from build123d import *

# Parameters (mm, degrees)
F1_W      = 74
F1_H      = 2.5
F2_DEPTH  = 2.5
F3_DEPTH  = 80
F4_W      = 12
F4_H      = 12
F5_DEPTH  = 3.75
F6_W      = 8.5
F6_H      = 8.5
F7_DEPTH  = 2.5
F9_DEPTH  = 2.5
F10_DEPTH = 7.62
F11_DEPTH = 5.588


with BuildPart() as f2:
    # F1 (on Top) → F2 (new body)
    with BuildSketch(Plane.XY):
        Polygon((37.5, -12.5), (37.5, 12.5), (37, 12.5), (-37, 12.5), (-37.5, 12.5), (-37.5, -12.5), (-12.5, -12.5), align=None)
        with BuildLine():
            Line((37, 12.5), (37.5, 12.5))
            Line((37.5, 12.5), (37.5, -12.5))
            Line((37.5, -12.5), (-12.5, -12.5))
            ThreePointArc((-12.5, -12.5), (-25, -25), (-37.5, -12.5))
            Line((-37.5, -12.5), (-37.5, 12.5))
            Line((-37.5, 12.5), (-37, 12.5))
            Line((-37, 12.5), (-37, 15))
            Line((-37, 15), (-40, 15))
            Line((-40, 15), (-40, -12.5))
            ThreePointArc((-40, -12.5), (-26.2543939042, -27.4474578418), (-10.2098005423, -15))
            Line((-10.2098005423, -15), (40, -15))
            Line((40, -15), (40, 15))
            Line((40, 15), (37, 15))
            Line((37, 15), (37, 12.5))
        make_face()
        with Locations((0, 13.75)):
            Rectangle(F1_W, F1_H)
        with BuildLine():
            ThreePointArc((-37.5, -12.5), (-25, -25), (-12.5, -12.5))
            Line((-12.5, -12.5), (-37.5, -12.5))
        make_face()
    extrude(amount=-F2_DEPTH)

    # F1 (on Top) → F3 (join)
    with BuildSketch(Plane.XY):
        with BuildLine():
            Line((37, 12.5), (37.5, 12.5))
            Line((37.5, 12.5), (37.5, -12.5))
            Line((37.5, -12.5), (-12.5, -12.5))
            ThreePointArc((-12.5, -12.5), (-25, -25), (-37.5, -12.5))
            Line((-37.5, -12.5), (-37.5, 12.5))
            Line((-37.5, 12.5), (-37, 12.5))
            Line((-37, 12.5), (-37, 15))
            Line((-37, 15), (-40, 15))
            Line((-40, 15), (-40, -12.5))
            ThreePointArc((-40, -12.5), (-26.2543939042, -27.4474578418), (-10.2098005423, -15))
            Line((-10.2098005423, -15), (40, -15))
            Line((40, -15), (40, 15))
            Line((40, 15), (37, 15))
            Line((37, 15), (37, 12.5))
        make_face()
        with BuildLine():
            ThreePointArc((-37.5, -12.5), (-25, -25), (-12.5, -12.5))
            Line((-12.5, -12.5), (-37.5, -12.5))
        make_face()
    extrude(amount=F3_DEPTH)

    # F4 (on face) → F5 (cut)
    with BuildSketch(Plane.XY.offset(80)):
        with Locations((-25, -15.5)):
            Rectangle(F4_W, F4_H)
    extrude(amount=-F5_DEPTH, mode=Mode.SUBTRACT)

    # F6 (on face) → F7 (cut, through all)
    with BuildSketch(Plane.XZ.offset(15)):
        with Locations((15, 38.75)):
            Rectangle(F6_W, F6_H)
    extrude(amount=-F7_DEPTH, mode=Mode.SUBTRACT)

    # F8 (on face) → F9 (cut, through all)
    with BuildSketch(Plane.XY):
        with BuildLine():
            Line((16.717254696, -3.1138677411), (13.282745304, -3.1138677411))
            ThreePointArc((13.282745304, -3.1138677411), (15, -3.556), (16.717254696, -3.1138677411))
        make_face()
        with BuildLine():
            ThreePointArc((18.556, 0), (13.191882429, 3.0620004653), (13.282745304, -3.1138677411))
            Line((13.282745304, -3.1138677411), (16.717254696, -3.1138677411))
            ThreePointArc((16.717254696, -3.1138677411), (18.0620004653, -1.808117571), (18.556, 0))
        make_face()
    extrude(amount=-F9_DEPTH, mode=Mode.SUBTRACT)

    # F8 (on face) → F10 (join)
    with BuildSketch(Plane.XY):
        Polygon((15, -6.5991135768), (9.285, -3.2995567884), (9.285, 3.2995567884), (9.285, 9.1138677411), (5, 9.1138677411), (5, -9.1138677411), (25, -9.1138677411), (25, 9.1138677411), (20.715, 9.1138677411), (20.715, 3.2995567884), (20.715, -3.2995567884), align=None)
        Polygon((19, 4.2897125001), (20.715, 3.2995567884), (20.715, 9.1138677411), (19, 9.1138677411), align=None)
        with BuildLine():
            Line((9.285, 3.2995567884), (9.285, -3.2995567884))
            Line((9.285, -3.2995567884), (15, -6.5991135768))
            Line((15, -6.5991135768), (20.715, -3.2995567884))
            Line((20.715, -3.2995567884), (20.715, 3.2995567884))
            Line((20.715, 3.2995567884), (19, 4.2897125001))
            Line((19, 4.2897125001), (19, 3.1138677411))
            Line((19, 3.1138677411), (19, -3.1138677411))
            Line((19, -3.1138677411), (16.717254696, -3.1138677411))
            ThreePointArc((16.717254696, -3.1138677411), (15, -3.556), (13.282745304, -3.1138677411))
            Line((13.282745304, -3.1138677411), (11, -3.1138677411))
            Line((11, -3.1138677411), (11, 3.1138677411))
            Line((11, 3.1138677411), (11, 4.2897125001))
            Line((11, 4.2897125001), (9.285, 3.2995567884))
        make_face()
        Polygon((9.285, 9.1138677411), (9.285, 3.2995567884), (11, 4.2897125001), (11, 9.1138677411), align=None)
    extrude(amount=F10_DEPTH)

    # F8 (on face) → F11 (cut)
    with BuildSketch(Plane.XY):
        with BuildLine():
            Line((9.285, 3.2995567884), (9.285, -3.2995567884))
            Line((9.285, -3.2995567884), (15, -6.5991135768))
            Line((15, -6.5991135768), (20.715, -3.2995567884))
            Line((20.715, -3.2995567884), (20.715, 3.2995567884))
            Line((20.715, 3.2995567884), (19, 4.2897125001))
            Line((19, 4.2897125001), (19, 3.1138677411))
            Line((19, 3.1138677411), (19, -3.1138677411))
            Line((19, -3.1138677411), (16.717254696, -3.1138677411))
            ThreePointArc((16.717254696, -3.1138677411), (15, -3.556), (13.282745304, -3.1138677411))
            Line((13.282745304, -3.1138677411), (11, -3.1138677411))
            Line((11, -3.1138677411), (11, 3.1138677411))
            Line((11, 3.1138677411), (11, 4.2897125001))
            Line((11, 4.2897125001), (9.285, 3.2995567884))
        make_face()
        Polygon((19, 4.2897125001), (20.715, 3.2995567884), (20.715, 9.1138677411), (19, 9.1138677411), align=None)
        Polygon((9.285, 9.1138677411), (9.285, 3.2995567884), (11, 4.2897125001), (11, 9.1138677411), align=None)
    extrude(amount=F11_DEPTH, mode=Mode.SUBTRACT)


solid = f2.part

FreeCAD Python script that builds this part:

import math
import FreeCAD as App
import Part
import Sketcher
Q = App.Units.Quantity

doc = App.newDocument("Part")
body = doc.addObject("PartDesign::Body", "Body")

# Sketch on XY plane
sketch1 = body.newObject("Sketcher::SketchObject", "Sketch")
sketch1.AttachmentSupport = (doc.getObject("XY_Plane"), [""])
sketch1.MapMode = "FlatFace"
sketch1.addGeometry([
    Part.LineSegment(App.Vector(-40, 15, 0), App.Vector(-40, -12.5, 0)),  # 0
    Part.ArcOfCircle(Part.Circle(App.Vector(-25, -12.5, 0), App.Vector(0, 0, 1), 15), math.radians(180), math.radians(350.405932)),  # 1
    Part.LineSegment(App.Vector(-10.209801, -15, 0), App.Vector(40, -15, 0)),  # 2
    Part.LineSegment(App.Vector(40, -15, 0), App.Vector(40, 15, 0)),  # 3
    Part.LineSegment(App.Vector(40, 15, 0), App.Vector(-40, 15, 0)),  # 4
], False)
sketch1.addConstraint([
    Sketcher.Constraint("Tangent", 0, 2, 1, 1),
    Sketcher.Constraint("Coincident", 1, 2, 2, 1),
    Sketcher.Constraint("Coincident", 2, 2, 3, 1),
    Sketcher.Constraint("Coincident", 3, 2, 4, 1),
    Sketcher.Constraint("Coincident", 4, 2, 0, 1),
    Sketcher.Constraint("Vertical", 0),
    Sketcher.Constraint("Horizontal", 2),
    Sketcher.Constraint("Vertical", 3),
    Sketcher.Constraint("Horizontal", 4),
    Sketcher.Constraint("Symmetric", 2, 2, 4, 2, -1, 1),
    Sketcher.Constraint("Radius", 1, Q("15 mm")),
    Sketcher.Constraint("DistanceX", 4, 2, 4, 1, Q("80 mm")),
    Sketcher.Constraint("DistanceY", 3, 1, 3, 2, Q("30 mm")),
    Sketcher.Constraint("DistanceY", 0, 2, 0, 1, Q("27.5 mm")),
])
pad1 = body.newObject("PartDesign::Pad", "Pad")
pad1.Profile = sketch1
pad1.Length = 2.5
pad1.Reversed = True

# Sketch on XY plane
sketch2 = body.newObject("Sketcher::SketchObject", "Sketch001")
sketch2.AttachmentSupport = (doc.getObject("XY_Plane"), [""])
sketch2.MapMode = "FlatFace"
sketch2.addGeometry([
    Part.LineSegment(App.Vector(37, 12.5, 0), App.Vector(37.5, 12.5, 0)),  # 0
    Part.LineSegment(App.Vector(37.5, 12.5, 0), App.Vector(37.5, -12.5, 0)),  # 1
    Part.LineSegment(App.Vector(37.5, -12.5, 0), App.Vector(-37.5, -12.5, 0)),  # 2
    Part.LineSegment(App.Vector(-37.5, -12.5, 0), App.Vector(-37.5, 12.5, 0)),  # 3
    Part.LineSegment(App.Vector(-37.5, 12.5, 0), App.Vector(-37, 12.5, 0)),  # 4
    Part.LineSegment(App.Vector(-37, 12.5, 0), App.Vector(-37, 15, 0)),  # 5
    Part.LineSegment(App.Vector(-37, 15, 0), App.Vector(-40, 15, 0)),  # 6
    Part.LineSegment(App.Vector(-40, 15, 0), App.Vector(-40, -12.5, 0)),  # 7
    Part.ArcOfCircle(Part.Circle(App.Vector(-25, -12.5, 0), App.Vector(0, 0, 1), 15), math.radians(180), math.radians(350.405932)),  # 8
    Part.LineSegment(App.Vector(-10.209801, -15, 0), App.Vector(40, -15, 0)),  # 9
    Part.LineSegment(App.Vector(40, -15, 0), App.Vector(40, 15, 0)),  # 10
    Part.LineSegment(App.Vector(40, 15, 0), App.Vector(37, 15, 0)),  # 11
    Part.LineSegment(App.Vector(37, 15, 0), App.Vector(37, 12.5, 0)),  # 12
], False)
sketch2.addConstraint([
    Sketcher.Constraint("Coincident", 0, 2, 1, 1),
    Sketcher.Constraint("Coincident", 1, 2, 2, 1),
    Sketcher.Constraint("Coincident", 2, 2, 3, 1),
    Sketcher.Constraint("Coincident", 3, 2, 4, 1),
    Sketcher.Constraint("Coincident", 4, 2, 5, 1),
    Sketcher.Constraint("Coincident", 5, 2, 6, 1),
    Sketcher.Constraint("Coincident", 6, 2, 7, 1),
    Sketcher.Constraint("Tangent", 7, 2, 8, 1),
    Sketcher.Constraint("Coincident", 8, 2, 9, 1),
    Sketcher.Constraint("Coincident", 9, 2, 10, 1),
    Sketcher.Constraint("Coincident", 10, 2, 11, 1),
    Sketcher.Constraint("Coincident", 11, 2, 12, 1),
    Sketcher.Constraint("Coincident", 12, 2, 0, 1),
    Sketcher.Constraint("Horizontal", 0),
    Sketcher.Constraint("Vertical", 1),
    Sketcher.Constraint("Horizontal", 2),
    Sketcher.Constraint("Vertical", 3),
    Sketcher.Constraint("Horizontal", 4),
    Sketcher.Constraint("Vertical", 5),
    Sketcher.Constraint("Horizontal", 6),
    Sketcher.Constraint("Vertical", 7),
    Sketcher.Constraint("Horizontal", 9),
    Sketcher.Constraint("Vertical", 10),
    Sketcher.Constraint("Horizontal", 11),
    Sketcher.Constraint("Vertical", 12),
    Sketcher.Constraint("Symmetric", 0, 2, 2, 2, -1, 1),
    Sketcher.Constraint("Symmetric", 6, 2, 9, 2, -1, 1),
    Sketcher.Constraint("Symmetric", 5, 2, 11, 2, -2),
    Sketcher.Constraint("Horizontal", 8, 3, 1, 2),
    Sketcher.Constraint("Horizontal", 0, 2, 3, 2),
    Sketcher.Constraint("Radius", 8, Q("15 mm")),
    Sketcher.Constraint("DistanceX", 2, 2, 2, 1, Q("75 mm")),
    Sketcher.Constraint("DistanceX", 6, 2, 6, 1, Q("3 mm")),
    Sketcher.Constraint("DistanceY", 1, 2, 1, 1, Q("25 mm")),
    Sketcher.Constraint("DistanceY", 10, 1, 10, 2, Q("30 mm")),
    Sketcher.Constraint("DistanceX", 0, 1, 0, 2, Q("0.5 mm")),
])
pad2 = body.newObject("PartDesign::Pad", "Pad001")
pad2.Profile = sketch2
pad2.Length = 80

# Sketch on XY plane
sketch3 = body.newObject("Sketcher::SketchObject", "Sketch002")
sketch3.AttachmentSupport = (doc.getObject("XY_Plane"), [""])
sketch3.MapMode = "FlatFace"
sketch3.AttachmentOffset = App.Placement(App.Vector(0, 0, 80), App.Rotation())
sketch3.addGeometry([
    Part.LineSegment(App.Vector(-31, -9.5, 0), App.Vector(-31, -21.5, 0)),
    Part.LineSegment(App.Vector(-31, -21.5, 0), App.Vector(-19, -21.5, 0)),
    Part.LineSegment(App.Vector(-19, -21.5, 0), App.Vector(-19, -9.5, 0)),
    Part.LineSegment(App.Vector(-19, -9.5, 0), App.Vector(-31, -9.5, 0)),
], False)
sketch3.addConstraint([
    Sketcher.Constraint("Coincident", 0, 2, 1, 1),
    Sketcher.Constraint("Coincident", 1, 2, 2, 1),
    Sketcher.Constraint("Coincident", 2, 2, 3, 1),
    Sketcher.Constraint("Coincident", 3, 2, 0, 1),
    Sketcher.Constraint("Vertical", 0),
    Sketcher.Constraint("Horizontal", 1),
    Sketcher.Constraint("Vertical", 2),
    Sketcher.Constraint("Horizontal", 3),
    Sketcher.Constraint("Equal", 3, 0),
    Sketcher.Constraint("DistanceX", 1, 1, 1, 2, Q("12 mm")),
    Sketcher.Constraint("DistanceX", 0, 2, -1, 1, Q("31 mm")),
    Sketcher.Constraint("DistanceY", 0, 2, -1, 1, Q("21.5 mm")),
])
pocket1 = body.newObject("PartDesign::Pocket", "Pocket")
pocket1.Profile = sketch3
pocket1.Length = 3.75

# Sketch on XZ plane
sketch4 = body.newObject("Sketcher::SketchObject", "Sketch003")
sketch4.AttachmentSupport = (doc.getObject("XZ_Plane"), [""])
sketch4.MapMode = "FlatFace"
sketch4.AttachmentOffset = App.Placement(App.Vector(0, 0, 15), App.Rotation())
sketch4.addGeometry([
    Part.LineSegment(App.Vector(10.75, 43, 0), App.Vector(10.75, 34.5, 0)),
    Part.LineSegment(App.Vector(10.75, 34.5, 0), App.Vector(19.25, 34.5, 0)),
    Part.LineSegment(App.Vector(19.25, 34.5, 0), App.Vector(19.25, 43, 0)),
    Part.LineSegment(App.Vector(19.25, 43, 0), App.Vector(10.75, 43, 0)),
], False)
sketch4.addConstraint([
    Sketcher.Constraint("Coincident", 0, 2, 1, 1),
    Sketcher.Constraint("Coincident", 1, 2, 2, 1),
    Sketcher.Constraint("Coincident", 2, 2, 3, 1),
    Sketcher.Constraint("Coincident", 3, 2, 0, 1),
    Sketcher.Constraint("Vertical", 0),
    Sketcher.Constraint("Horizontal", 1),
    Sketcher.Constraint("Vertical", 2),
    Sketcher.Constraint("Horizontal", 3),
    Sketcher.Constraint("Equal", 3, 0),
    Sketcher.Constraint("DistanceX", 1, 1, 1, 2, Q("8.5 mm")),
    Sketcher.Constraint("DistanceY", -1, 1, 2, 2, Q("43 mm")),
    Sketcher.Constraint("DistanceX", -1, 1, 0, 2, Q("10.75 mm")),
])
pocket2 = body.newObject("PartDesign::Pocket", "Pocket001")
pocket2.Profile = sketch4
pocket2.Type = "ThroughAll"

# Sketch on XY plane
sketch5 = body.newObject("Sketcher::SketchObject", "Sketch004")
sketch5.AttachmentSupport = (doc.getObject("XY_Plane"), [""])
sketch5.MapMode = "FlatFace"
sketch5.addGeometry([
    Part.ArcOfCircle(Part.Circle(App.Vector(15, 0, 0), App.Vector(0, 0, 1), 3.556), math.radians(-118.876124), math.radians(-61.123876)),
    Part.ArcOfCircle(Part.Circle(App.Vector(15, 0, 0), App.Vector(0, 0, 1), 3.556), math.radians(-61.123876), math.radians(0)),
    Part.ArcOfCircle(Part.Circle(App.Vector(15, 0, 0), App.Vector(0, 0, 1), 3.556), math.radians(0), math.radians(241.123876)),
], False)
sketch5.addConstraint([
    Sketcher.Constraint("Tangent", 0, 2, 1, 1),
    Sketcher.Constraint("Tangent", 1, 2, 2, 1),
    Sketcher.Constraint("Tangent", 2, 2, 0, 1),
    Sketcher.Constraint("PointOnObject", 0, 3, -1),
    Sketcher.Constraint("PointOnObject", 1, 2, -1),
    Sketcher.Constraint("Horizontal", 0, 2, 2, 2),
    Sketcher.Constraint("DistanceX", -1, 1, 0, 3, Q("15 mm")),
    Sketcher.Constraint("Radius", 0, Q("3.556 mm")),
    Sketcher.Constraint("DistanceX", 2, 2, 0, 2, Q("3.434509 mm")),
])
pocket3 = body.newObject("PartDesign::Pocket", "Pocket002")
pocket3.Profile = sketch5
pocket3.Type = "ThroughAll"

# Sketch on XY plane
sketch6 = body.newObject("Sketcher::SketchObject", "Sketch005")
sketch6.AttachmentSupport = (doc.getObject("XY_Plane"), [""])
sketch6.MapMode = "FlatFace"
sketch6.addGeometry([
    Part.LineSegment(App.Vector(5, 9.113868, 0), App.Vector(5, -9.113868, 0)),  # 0
    Part.LineSegment(App.Vector(5, -9.113868, 0), App.Vector(25, -9.113868, 0)),  # 1
    Part.LineSegment(App.Vector(25, -9.113868, 0), App.Vector(25, 9.113868, 0)),  # 2
    Part.LineSegment(App.Vector(25, 9.113868, 0), App.Vector(19, 9.113868, 0)),  # 3
    Part.LineSegment(App.Vector(19, 9.113868, 0), App.Vector(19, -3.113868, 0)),  # 4
    Part.LineSegment(App.Vector(19, -3.113868, 0), App.Vector(16.717255, -3.113868, 0)),  # 5
    Part.ArcOfCircle(Part.Circle(App.Vector(15, 0, 0), App.Vector(0, 0, 1), 3.556), math.radians(-118.876124), math.radians(-61.123876)),  # 6
    Part.LineSegment(App.Vector(13.282745, -3.113868, 0), App.Vector(11, -3.113868, 0)),  # 7
    Part.LineSegment(App.Vector(11, -3.113868, 0), App.Vector(11, 9.113868, 0)),  # 8
    Part.LineSegment(App.Vector(11, 9.113868, 0), App.Vector(5, 9.113868, 0)),  # 9
], False)
sketch6.addConstraint([
    Sketcher.Constraint("Coincident", 0, 2, 1, 1),
    Sketcher.Constraint("Coincident", 1, 2, 2, 1),
    Sketcher.Constraint("Coincident", 2, 2, 3, 1),
    Sketcher.Constraint("Coincident", 3, 2, 4, 1),
    Sketcher.Constraint("Coincident", 4, 2, 5, 1),
    Sketcher.Constraint("Coincident", 5, 2, 6, 2),
    Sketcher.Constraint("Coincident", 6, 1, 7, 1),
    Sketcher.Constraint("Coincident", 7, 2, 8, 1),
    Sketcher.Constraint("Coincident", 8, 2, 9, 1),
    Sketcher.Constraint("Coincident", 9, 2, 0, 1),
    Sketcher.Constraint("Vertical", 0),
    Sketcher.Constraint("Horizontal", 1),
    Sketcher.Constraint("Vertical", 2),
    Sketcher.Constraint("Horizontal", 3),
    Sketcher.Constraint("Vertical", 4),
    Sketcher.Constraint("Horizontal", 5),
    Sketcher.Constraint("Horizontal", 7),
    Sketcher.Constraint("Vertical", 8),
    Sketcher.Constraint("Horizontal", 9),
    Sketcher.Constraint("PointOnObject", 6, 3, -1),
    Sketcher.Constraint("Horizontal", 5, 2, 6, 1),
    Sketcher.Constraint("Horizontal", 3, 2, 8, 2),
    Sketcher.Constraint("Equal", 5, 7),
    Sketcher.Constraint("Equal", 3, 9),
    Sketcher.Constraint("DistanceX", 1, 1, 1, 2, Q("20 mm")),
    Sketcher.Constraint("DistanceX", 3, 2, 3, 1, Q("6 mm")),
    Sketcher.Constraint("DistanceX", -1, 1, 6, 3, Q("15 mm")),
    Sketcher.Constraint("Radius", 6, Q("3.556 mm")),
    Sketcher.Constraint("DistanceY", 1, 2, 4, 2, Q("6 mm")),
    Sketcher.Constraint("DistanceX", 5, 2, 5, 1, Q("2.282745 mm")),
    Sketcher.Constraint("DistanceY", 0, 2, 0, 1, Q("18.227735 mm")),
])
pad3 = body.newObject("PartDesign::Pad", "Pad002")
pad3.Profile = sketch6
pad3.Length = 7.62

# Sketch on XY plane
sketch7 = body.newObject("Sketcher::SketchObject", "Sketch006")
sketch7.AttachmentSupport = (doc.getObject("XY_Plane"), [""])
sketch7.MapMode = "FlatFace"
sketch7.addGeometry([
    Part.LineSegment(App.Vector(9.285, -3.299557, 0), App.Vector(15, -6.599114, 0)),  # 0
    Part.LineSegment(App.Vector(15, -6.599114, 0), App.Vector(20.715, -3.299557, 0)),  # 1
    Part.LineSegment(App.Vector(20.715, -3.299557, 0), App.Vector(20.715, 9.113868, 0)),  # 2
    Part.LineSegment(App.Vector(20.715, 9.113868, 0), App.Vector(19, 9.113868, 0)),  # 3
    Part.LineSegment(App.Vector(19, 9.113868, 0), App.Vector(19, -3.113868, 0)),  # 4
    Part.LineSegment(App.Vector(19, -3.113868, 0), App.Vector(16.717255, -3.113868, 0)),  # 5
    Part.ArcOfCircle(Part.Circle(App.Vector(15, 0, 0), App.Vector(0, 0, 1), 3.556), math.radians(-118.876124), math.radians(-61.123876)),  # 6
    Part.LineSegment(App.Vector(13.282745, -3.113868, 0), App.Vector(11, -3.113868, 0)),  # 7
    Part.LineSegment(App.Vector(11, -3.113868, 0), App.Vector(11, 9.113868, 0)),  # 8
    Part.LineSegment(App.Vector(11, 9.113868, 0), App.Vector(9.285, 9.113868, 0)),  # 9
    Part.LineSegment(App.Vector(9.285, 9.113868, 0), App.Vector(9.285, -3.299557, 0)),  # 10
], False)
sketch7.addConstraint([
    Sketcher.Constraint("Coincident", 0, 2, 1, 1),
    Sketcher.Constraint("Coincident", 1, 2, 2, 1),
    Sketcher.Constraint("Coincident", 2, 2, 3, 1),
    Sketcher.Constraint("Coincident", 3, 2, 4, 1),
    Sketcher.Constraint("Coincident", 4, 2, 5, 1),
    Sketcher.Constraint("Coincident", 5, 2, 6, 2),
    Sketcher.Constraint("Coincident", 6, 1, 7, 1),
    Sketcher.Constraint("Coincident", 7, 2, 8, 1),
    Sketcher.Constraint("Coincident", 8, 2, 9, 1),
    Sketcher.Constraint("Coincident", 9, 2, 10, 1),
    Sketcher.Constraint("Coincident", 10, 2, 0, 1),
    Sketcher.Constraint("Vertical", 2),
    Sketcher.Constraint("Horizontal", 3),
    Sketcher.Constraint("Vertical", 4),
    Sketcher.Constraint("Horizontal", 5),
    Sketcher.Constraint("Horizontal", 7),
    Sketcher.Constraint("Vertical", 8),
    Sketcher.Constraint("Horizontal", 9),
    Sketcher.Constraint("Vertical", 10),
    Sketcher.Constraint("PointOnObject", 6, 3, -1),
    Sketcher.Constraint("Horizontal", 5, 2, 6, 1),
    Sketcher.Constraint("Horizontal", 3, 2, 8, 2),
    Sketcher.Constraint("Horizontal", 1, 2, 10, 2),
    Sketcher.Constraint("Vertical", 6, 3, 0, 2),
    Sketcher.Constraint("Equal", 5, 7),
    Sketcher.Constraint("Equal", 3, 9),
    Sketcher.Constraint("Angle", 0, Q("-30 deg")),
    Sketcher.Constraint("DistanceX", -1, 1, 6, 3, Q("15 mm")),
    Sketcher.Constraint("DistanceX", -1, 1, 3, 2, Q("19 mm")),
    Sketcher.Constraint("Radius", 6, Q("3.556 mm")),
    Sketcher.Constraint("DistanceX", 3, 2, 3, 1, Q("1.715 mm")),
    Sketcher.Constraint("DistanceX", 5, 2, 5, 1, Q("2.282745 mm")),
    Sketcher.Constraint("DistanceY", 2, 1, 2, 2, Q("12.413425 mm")),
    Sketcher.Constraint("DistanceY", 4, 2, 4, 1, Q("12.227735 mm")),
])
pocket4 = body.newObject("PartDesign::Pocket", "Pocket003")
pocket4.Profile = sketch7
pocket4.Length = 5.588
pocket4.Reversed = True

doc.recompute()
